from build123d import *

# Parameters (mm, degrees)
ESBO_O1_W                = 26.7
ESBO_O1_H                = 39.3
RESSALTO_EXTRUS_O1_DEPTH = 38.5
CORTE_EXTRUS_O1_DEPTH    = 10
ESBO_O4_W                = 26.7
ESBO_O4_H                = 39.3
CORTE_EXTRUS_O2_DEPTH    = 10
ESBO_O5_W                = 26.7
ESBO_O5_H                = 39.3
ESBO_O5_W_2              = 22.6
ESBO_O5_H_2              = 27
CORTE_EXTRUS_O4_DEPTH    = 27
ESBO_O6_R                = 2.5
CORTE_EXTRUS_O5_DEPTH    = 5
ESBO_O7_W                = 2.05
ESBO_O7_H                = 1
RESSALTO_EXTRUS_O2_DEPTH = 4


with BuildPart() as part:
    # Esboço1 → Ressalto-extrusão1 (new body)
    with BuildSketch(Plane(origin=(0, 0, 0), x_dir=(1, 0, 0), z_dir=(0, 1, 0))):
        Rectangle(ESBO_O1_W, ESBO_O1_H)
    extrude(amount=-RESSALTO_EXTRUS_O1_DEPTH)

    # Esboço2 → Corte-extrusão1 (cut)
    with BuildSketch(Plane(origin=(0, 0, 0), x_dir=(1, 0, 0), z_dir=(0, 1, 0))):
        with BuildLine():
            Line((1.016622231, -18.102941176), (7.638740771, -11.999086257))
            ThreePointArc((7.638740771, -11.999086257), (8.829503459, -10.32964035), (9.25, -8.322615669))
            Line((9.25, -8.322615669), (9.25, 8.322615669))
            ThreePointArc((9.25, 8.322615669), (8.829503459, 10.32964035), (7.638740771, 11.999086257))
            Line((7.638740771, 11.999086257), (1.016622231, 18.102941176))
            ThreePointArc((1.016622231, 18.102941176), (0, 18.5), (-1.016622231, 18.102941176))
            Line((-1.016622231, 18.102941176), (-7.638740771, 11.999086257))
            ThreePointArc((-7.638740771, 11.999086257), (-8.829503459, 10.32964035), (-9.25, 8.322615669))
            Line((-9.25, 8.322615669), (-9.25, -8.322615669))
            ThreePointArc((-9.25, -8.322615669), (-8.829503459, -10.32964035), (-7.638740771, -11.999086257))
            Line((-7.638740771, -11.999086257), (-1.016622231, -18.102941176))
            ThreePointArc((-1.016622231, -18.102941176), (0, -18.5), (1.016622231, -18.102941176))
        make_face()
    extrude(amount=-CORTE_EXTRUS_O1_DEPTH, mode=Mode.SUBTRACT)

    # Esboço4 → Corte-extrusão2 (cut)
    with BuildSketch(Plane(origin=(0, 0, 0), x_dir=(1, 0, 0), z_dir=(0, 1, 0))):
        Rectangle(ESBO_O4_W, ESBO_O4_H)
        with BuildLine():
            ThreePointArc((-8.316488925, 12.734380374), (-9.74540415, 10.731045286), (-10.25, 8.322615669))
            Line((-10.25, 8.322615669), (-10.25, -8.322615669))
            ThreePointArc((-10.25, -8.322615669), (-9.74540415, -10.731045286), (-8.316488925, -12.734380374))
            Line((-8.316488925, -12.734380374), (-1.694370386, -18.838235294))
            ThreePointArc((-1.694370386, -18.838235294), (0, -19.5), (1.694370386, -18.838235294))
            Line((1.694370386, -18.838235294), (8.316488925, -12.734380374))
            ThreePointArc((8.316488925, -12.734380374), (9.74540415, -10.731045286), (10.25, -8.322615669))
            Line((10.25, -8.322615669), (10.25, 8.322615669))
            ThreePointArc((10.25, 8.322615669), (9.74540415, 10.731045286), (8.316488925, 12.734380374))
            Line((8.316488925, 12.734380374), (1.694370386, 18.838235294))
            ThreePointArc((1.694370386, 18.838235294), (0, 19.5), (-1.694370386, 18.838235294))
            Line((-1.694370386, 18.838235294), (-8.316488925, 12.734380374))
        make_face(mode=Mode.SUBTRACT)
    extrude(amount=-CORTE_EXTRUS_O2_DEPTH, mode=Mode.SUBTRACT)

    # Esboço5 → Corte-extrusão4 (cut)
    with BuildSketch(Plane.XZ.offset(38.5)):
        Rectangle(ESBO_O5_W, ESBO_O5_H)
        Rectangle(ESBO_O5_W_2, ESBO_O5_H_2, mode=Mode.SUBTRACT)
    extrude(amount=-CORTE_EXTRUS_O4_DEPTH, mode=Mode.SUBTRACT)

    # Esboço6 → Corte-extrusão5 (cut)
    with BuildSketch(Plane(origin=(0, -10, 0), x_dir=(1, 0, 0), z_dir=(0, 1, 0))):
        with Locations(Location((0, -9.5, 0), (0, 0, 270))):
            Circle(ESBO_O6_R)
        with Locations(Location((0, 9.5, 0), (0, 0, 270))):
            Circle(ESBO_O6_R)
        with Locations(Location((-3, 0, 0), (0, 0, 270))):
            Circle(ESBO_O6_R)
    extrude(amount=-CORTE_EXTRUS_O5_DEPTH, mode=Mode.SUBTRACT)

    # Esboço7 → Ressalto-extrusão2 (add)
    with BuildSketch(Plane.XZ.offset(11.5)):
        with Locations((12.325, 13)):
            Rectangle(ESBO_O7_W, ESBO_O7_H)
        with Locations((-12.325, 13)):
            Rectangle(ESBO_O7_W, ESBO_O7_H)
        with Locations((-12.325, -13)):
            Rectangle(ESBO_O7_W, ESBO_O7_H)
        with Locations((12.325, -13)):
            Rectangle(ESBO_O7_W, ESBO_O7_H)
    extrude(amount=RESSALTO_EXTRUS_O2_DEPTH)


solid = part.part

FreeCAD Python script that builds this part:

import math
import FreeCAD as App
import Part
import Sketcher
from FreeCAD import Vector
Q = App.Units.Quantity


def add_polygon(sketch, points):
    """Adds a closed chain of lines whose ends are joined by coincident constraints."""
    first, n = sketch.GeometryCount, len(points)
    for a, b in zip(points, points[1:] + points[:1]):
        sketch.addGeometry(Part.LineSegment(App.Vector(*a, 0), App.Vector(*b, 0)), False)
    for i in range(n):
        sketch.addConstraint(Sketcher.Constraint("Coincident", first + i, 2, first + (i + 1) % n, 1))

doc = App.newDocument("Part")
params = doc.addObject("Spreadsheet::Sheet", "Params")
for row, (alias, value) in enumerate([
    ("sketch1_width", "26.7 mm"),
    ("sketch1_height", "39.3 mm"),
    ("pad1_length", "38.5 mm"),
    ("sketch2_radius", "5 mm"),
    ("sketch2_radius2", "1.5 mm"),
    ("pocket1_length", "10 mm"),
    ("sketch3_radius", "6 mm"),
    ("sketch3_radius2", "2.5 mm"),
    ("sketch3_width", "26.7 mm"),
    ("sketch3_height", "39.3 mm"),
    ("pocket2_length", "10 mm"),
    ("sketch4_height", "27 mm"),
    ("sketch4_width", "26.7 mm"),
    ("sketch4_width2", "22.6 mm"),
    ("sketch4_height2", "39.3 mm"),
    ("pocket3_length", "27 mm"),
    ("sketch5_diameter", "5 mm"),
    ("pocket4_length", "5 mm"),
    ("sketch6_height", "1 mm"),
    ("sketch6_width", "2.05 mm"),
    ("pad2_length", "4 mm"),
], start=1):
    params.set(f"A{row}", alias)
    params.set(f"B{row}", "=" + value)
    params.setAlias(f"B{row}", alias)

body = doc.addObject("PartDesign::Body", "Body")

sketch1 = doc.addObject("Sketcher::SketchObject", "Sketch")
body.addObject(sketch1)
sketch1.AttachmentSupport = (doc.XZ_Plane, [""])
sketch1.MapMode = "FlatFace"
add_polygon(sketch1, [(-13, -20), (-13, 20), (13, 20), (13, -20)])
sketch1.addConstraint([
    Sketcher.Constraint("Vertical", 0),
    Sketcher.Constraint("Horizontal", 1),
    Sketcher.Constraint("Vertical", 2),
    Sketcher.Constraint("Horizontal", 3),
    Sketcher.Constraint("Symmetric", 0, 2, 2, 2, -1, 1),
    Sketcher.Constraint("DistanceX", 1, 1, 1, 2, Q("26.7 mm")),
    Sketcher.Constraint("DistanceY", 0, 1, 0, 2, Q("39.3 mm")),
])
sketch1.setExpression("Constraints[9]", "Params.sketch1_width")
sketch1.setExpression("Constraints[10]", "Params.sketch1_height")
pad1 = doc.addObject("PartDesign::Pad", "Pad")
body.addObject(pad1)
pad1.Profile = sketch1
pad1.setExpression("Length", "Params.pad1_length")

sketch2 = doc.addObject("Sketcher::SketchObject", "Sketch001")
body.addObject(sketch2)
sketch2.AttachmentSupport = (doc.XZ_Plane, [""])
sketch2.MapMode = "FlatFace"
sketch2.addGeometry([
    Part.LineSegment(Vector(1, 18.1, 0), Vector(7.6, 12, 0)),
    Part.ArcOfCircle(Part.Circle(Vector(4.3, 8.3, 0), Vector(0, 0, 1), 5), math.radians(0), math.radians(47)),
    Part.LineSegment(Vector(9.2, 8.3, 0), Vector(9.2, -8.3, 0)),
    Part.ArcOfCircle(Part.Circle(Vector(4.3, -8.3, 0), Vector(0, 0, 1), 5), math.radians(-47), math.radians(0)),
    Part.LineSegment(Vector(7.6, -12, 0), Vector(1, -18.1, 0)),
    Part.ArcOfCircle(Part.Circle(Vector(0, -17, 0), Vector(0, 0, 1), 1.5), math.radians(-133), math.radians(-47)),
    Part.LineSegment(Vector(-1, -18.1, 0), Vector(-7.6, -12, 0)),
    Part.ArcOfCircle(Part.Circle(Vector(-4.3, -8.3, 0), Vector(0, 0, 1), 5), math.radians(180), math.radians(227)),
    Part.LineSegment(Vector(-9.2, -8.3, 0), Vector(-9.2, 8.3, 0)),
    Part.ArcOfCircle(Part.Circle(Vector(-4.3, 8.3, 0), Vector(0, 0, 1), 5), math.radians(133), math.radians(180)),
    Part.LineSegment(Vector(-7.6, 12, 0), Vector(-1, 18.1, 0)),
    Part.ArcOfCircle(Part.Circle(Vector(0, 17, 0), Vector(0, 0, 1), 1.5), math.radians(47), math.radians(133)),
], False)
sketch2.addConstraint([
    Sketcher.Constraint("Tangent", 0, 2, 1, 2),
    Sketcher.Constraint("Tangent", 1, 1, 2, 1),
    Sketcher.Constraint("Tangent", 2, 2, 3, 2),
    Sketcher.Constraint("Tangent", 3, 1, 4, 1),
    Sketcher.Constraint("Tangent", 4, 2, 5, 2),
    Sketcher.Constraint("Tangent", 5, 1, 6, 1),
    Sketcher.Constraint("Tangent", 6, 2, 7, 2),
    Sketcher.Constraint("Tangent", 7, 1, 8, 1),
    Sketcher.Constraint("Tangent", 8, 2, 9, 2),
    Sketcher.Constraint("Tangent", 9, 1, 10, 1),
    Sketcher.Constraint("Tangent", 10, 2, 11, 2),
    Sketcher.Constraint("Tangent", 11, 1, 0, 1),
    Sketcher.Constraint("Vertical", 2),
    Sketcher.Constraint("Vertical", 8),
    Sketcher.Constraint("Equal", 1, 3),
    Sketcher.Constraint("Equal", 3, 7),
    Sketcher.Constraint("Equal", 7, 9),
    Sketcher.Constraint("Equal", 5, 11),
    Sketcher.Constraint("Symmetric", 1, 3, 7, 3, -1, 1),
    Sketcher.Constraint("Symmetric", 5, 3, 11, 3, -1, 1),
    Sketcher.Constraint("Symmetric", 4, 2, 5, 1, -2),
    Sketcher.Constraint("Parallel", 4, 10),
    Sketcher.Constraint("Radius", 1, Q("5 mm")),
    Sketcher.Constraint("Radius", 5, Q("1.5 mm")),
    Sketcher.Constraint("DistanceY", 5, 3, -1, 1, Q("17 mm")),
    Sketcher.Constraint("DistanceX", 7, 3, 3, 3, Q("8.5 mm")),
    Sketcher.Constraint("DistanceY", 2, 2, 2, 1, Q("16.645231 mm")),
])
sketch2.setExpression("Constraints[22]", "Params.sketch2_radius")
sketch2.setExpression("Constraints[23]", "Params.sketch2_radius2")
pocket1 = doc.addObject("PartDesign::Pocket", "Pocket")
body.addObject(pocket1)
pocket1.Profile = sketch2
pocket1.setExpression("Length", "Params.pocket1_length")
pocket1.Reversed = True

sketch3 = doc.addObject("Sketcher::SketchObject", "Sketch002")
body.addObject(sketch3)
sketch3.AttachmentSupport = (doc.XZ_Plane, [""])
sketch3.MapMode = "FlatFace"
add_polygon(sketch3, [(-13.3, -19.6), (-13.3, 19.6), (13.3, 19.6), (13.3, -19.6)])
sketch3.addGeometry(Part.ArcOfCircle(Part.Circle(Vector(-4.2, -8.3, 0), Vector(0, 0, 1), 6), math.radians(-180), math.radians(-133)), False)
sketch3.addGeometry(Part.LineSegment(Vector(-8.3, -12.7, 0), Vector(-1.7, -18.8, 0)), False)
sketch3.addGeometry(Part.ArcOfCircle(Part.Circle(Vector(0, -17, 0), Vector(0, 0, 1), 2.5), math.radians(-133), math.radians(-47)), False)
sketch3.addGeometry(Part.LineSegment(Vector(1.7, -18.8, 0), Vector(8.3, -12.7, 0)), False)
sketch3.addGeometry(Part.ArcOfCircle(Part.Circle(Vector(4.2, -8.3, 0), Vector(0, 0, 1), 6), math.radians(-47), math.radians(0)), False)
sketch3.addGeometry(Part.LineSegment(Vector(10.2, -8.3, 0), Vector(10.2, 8.3, 0)), False)
sketch3.addGeometry(Part.ArcOfCircle(Part.Circle(Vector(4.2, 8.3, 0), Vector(0, 0, 1), 6), math.radians(0), math.radians(47)), False)
sketch3.addGeometry(Part.LineSegment(Vector(8.3, 12.7, 0), Vector(1.7, 18.8, 0)), False)
sketch3.addGeometry(Part.ArcOfCircle(Part.Circle(Vector(0, 17, 0), Vector(0, 0, 1), 2.5), math.radians(47), math.radians(133)), False)
sketch3.addGeometry(Part.LineSegment(Vector(-1.7, 18.8, 0), Vector(-8.3, 12.7, 0)), False)
sketch3.addGeometry(Part.ArcOfCircle(Part.Circle(Vector(-4.2, 8.3, 0), Vector(0, 0, 1), 6), math.radians(133), math.radians(180)), False)
sketch3.addGeometry(Part.LineSegment(Vector(-10.2, 8.3, 0), Vector(-10.2, -8.3, 0)), False)
sketch3.addConstraint([
    Sketcher.Constraint("Tangent", 4, 2, 5, 1),
    Sketcher.Constraint("Tangent", 5, 2, 6, 1),
    Sketcher.Constraint("Tangent", 6, 2, 7, 1),
    Sketcher.Constraint("Tangent", 7, 2, 8, 1),
    Sketcher.Constraint("Tangent", 8, 2, 9, 1),
    Sketcher.Constraint("Tangent", 9, 2, 10, 1),
    Sketcher.Constraint("Tangent", 10, 2, 11, 1),
    Sketcher.Constraint("Tangent", 11, 2, 12, 1),
    Sketcher.Constraint("Tangent", 12, 2, 13, 1),
    Sketcher.Constraint("Tangent", 13, 2, 14, 1),
    Sketcher.Constraint("Tangent", 14, 2, 15, 1),
    Sketcher.Constraint("Tangent", 15, 2, 4, 1),
    Sketcher.Constraint("Vertical", 0),
    Sketcher.Constraint("Horizontal", 1),
    Sketcher.Constraint("Vertical", 2),
    Sketcher.Constraint("Horizontal", 3),
    Sketcher.Constraint("Vertical", 9),
    Sketcher.Constraint("Vertical", 15),
    Sketcher.Constraint("Equal", 4, 8),
    Sketcher.Constraint("Equal", 8, 10),
    Sketcher.Constraint("Equal", 6, 12),
    Sketcher.Constraint("Equal", 10, 14),
    Sketcher.Constraint("Symmetric", 4, 3, 10, 3, -1, 1),
    Sketcher.Constraint("Symmetric", 6, 3, 12, 3, -1, 1),
    Sketcher.Constraint("Symmetric", 0, 2, 2, 2, -1, 1),
    Sketcher.Constraint("Symmetric", 5, 2, 6, 2, -2),
    Sketcher.Constraint("Parallel", 7, 13),
    Sketcher.Constraint("Radius", 4, Q("6 mm")),
    Sketcher.Constraint("Radius", 6, Q("2.5 mm")),
    Sketcher.Constraint("DistanceX", 1, 1, 1, 2, Q("26.7 mm")),
    Sketcher.Constraint("DistanceY", 0, 1, 0, 2, Q("39.3 mm")),
    Sketcher.Constraint("DistanceY", 6, 3, -1, 1, Q("17 mm")),
    Sketcher.Constraint("DistanceX", 4, 3, 8, 3, Q("8.5 mm")),
    Sketcher.Constraint("DistanceY", 9, 1, 9, 2, Q("16.645231 mm")),
])
sketch3.setExpression("Constraints[31]", "Params.sketch3_radius")
sketch3.setExpression("Constraints[32]", "Params.sketch3_radius2")
sketch3.setExpression("Constraints[33]", "Params.sketch3_width")
sketch3.setExpression("Constraints[34]", "Params.sketch3_height")
pocket2 = doc.addObject("PartDesign::Pocket", "Pocket001")
body.addObject(pocket2)
pocket2.Profile = sketch3
pocket2.setExpression("Length", "Params.pocket2_length")
pocket2.Reversed = True

sketch4 = doc.addObject("Sketcher::SketchObject", "Sketch003")
body.addObject(sketch4)
sketch4.AttachmentSupport = (doc.XZ_Plane, [""])
sketch4.MapMode = "FlatFace"
sketch4.AttachmentOffset = App.Placement(Vector(0, 0, 38.5), App.Rotation())
add_polygon(sketch4, [(-13, 20), (-13, -20), (13, -20), (13, 20)])
add_polygon(sketch4, [(11, -14), (-11, -14), (-11, 14), (11, 14)])
sketch4.addConstraint([
    Sketcher.Constraint("Vertical", 0),
    Sketcher.Constraint("Horizontal", 1),
    Sketcher.Constraint("Vertical", 2),
    Sketcher.Constraint("Horizontal", 3),
    Sketcher.Constraint("Horizontal", 4),
    Sketcher.Constraint("Vertical", 5),
    Sketcher.Constraint("Horizontal", 6),
    Sketcher.Constraint("Vertical", 7),
    Sketcher.Constraint("Symmetric", 0, 2, 2, 2, -1, 1),
    Sketcher.Constraint("Symmetric", 4, 2, 6, 2, -1, 1),
    Sketcher.Constraint("DistanceY", 5, 1, 5, 2, Q("27 mm")),
    Sketcher.Constraint("DistanceX", 1, 1, 1, 2, Q("26.7 mm")),
    Sketcher.Constraint("DistanceX", 4, 2, 4, 1, Q("22.6 mm")),
    Sketcher.Constraint("DistanceY", 0, 2, 0, 1, Q("39.3 mm")),
])
sketch4.setExpression("Constraints[18]", "Params.sketch4_height")
sketch4.setExpression("Constraints[19]", "Params.sketch4_width")
sketch4.setExpression("Constraints[20]", "Params.sketch4_width2")
sketch4.setExpression("Constraints[21]", "Params.sketch4_height2")
pocket3 = doc.addObject("PartDesign::Pocket", "Pocket002")
body.addObject(pocket3)
pocket3.Profile = sketch4
pocket3.setExpression("Length", "Params.pocket3_length")

sketch5 = doc.addObject("Sketcher::SketchObject", "Sketch004")
body.addObject(sketch5)
sketch5.AttachmentSupport = (doc.XZ_Plane, [""])
sketch5.MapMode = "FlatFace"
sketch5.AttachmentOffset = App.Placement(Vector(0, 0, 10), App.Rotation())
sketch5.addGeometry([
    Part.Circle(Vector(0, 9.5, 0), Vector(0, 0, 1), 2.5),
    Part.Circle(Vector(0, -9.5, 0), Vector(0, 0, 1), 2.5),
    Part.Circle(Vector(-3, 0, 0), Vector(0, 0, 1), 2.5),
], False)
sketch5.addConstraint([
    Sketcher.Constraint("Equal", 0, 1),
    Sketcher.Constraint("Equal", 1, 2),
    Sketcher.Constraint("Symmetric", 0, 3, 1, 3, -1, 1),
    Sketcher.Constraint("PointOnObject", 0, 3, -2),
    Sketcher.Constraint("PointOnObject", 2, 3, -1),
    Sketcher.Constraint("Diameter", 0, Q("5 mm")),
    Sketcher.Constraint("DistanceX", 2, 3, -1, 1, Q("3 mm")),
    Sketcher.Constraint("DistanceY", 1, 3, 0, 3, Q("19 mm")),
])
sketch5.setExpression("Constraints[5]", "Params.sketch5_diameter")
pocket4 = doc.addObject("PartDesign::Pocket", "Pocket003")
body.addObject(pocket4)
pocket4.Profile = sketch5
pocket4.setExpression("Length", "Params.pocket4_length")
pocket4.Reversed = True

sketch6 = doc.addObject("Sketcher::SketchObject", "Sketch005")
body.addObject(sketch6)
sketch6.AttachmentSupport = (doc.XZ_Plane, [""])
sketch6.MapMode = "FlatFace"
sketch6.AttachmentOffset = App.Placement(Vector(0, 0, 11.5), App.Rotation())
add_polygon(sketch6, [(11.3, 13.5), (11.3, 12.5), (13.3, 12.5), (13.3, 13.5)])
add_polygon(sketch6, [(-13.3, 13.5), (-13.3, 12.5), (-11.3, 12.5), (-11.3, 13.5)])
add_polygon(sketch6, [(-13.3, -12.5), (-13.3, -13.5), (-11.3, -13.5), (-11.3, -12.5)])
add_polygon(sketch6, [(11.3, -12.5), (11.3, -13.5), (13.3, -13.5), (13.3, -12.5)])
sketch6.addConstraint([
    Sketcher.Constraint("Vertical", 0),
    Sketcher.Constraint("Horizontal", 1),
    Sketcher.Constraint("Vertical", 2),
    Sketcher.Constraint("Horizontal", 3),
    Sketcher.Constraint("Vertical", 4),
    Sketcher.Constraint("Horizontal", 5),
    Sketcher.Constraint("Vertical", 6),
    Sketcher.Constraint("Horizontal", 7),
    Sketcher.Constraint("Vertical", 8),
    Sketcher.Constraint("Horizontal", 9),
    Sketcher.Constraint("Vertical", 10),
    Sketcher.Constraint("Horizontal", 11),
    Sketcher.Constraint("Vertical", 12),
    Sketcher.Constraint("Horizontal", 13),
    Sketcher.Constraint("Vertical", 14),
    Sketcher.Constraint("Horizontal", 15),
    Sketcher.Constraint("Symmetric", 2, 2, 8, 2, -1, 1),
    Sketcher.Constraint("Symmetric", 0, 2, 10, 2, -1, 1),
    Sketcher.Constraint("Symmetric", 6, 2, 12, 2, -1, 1),
    Sketcher.Constraint("Symmetric", 4, 2, 14, 2, -1, 1),
    Sketcher.Constraint("Symmetric", 1, 2, 4, 2, -2),
    Sketcher.Constraint("Symmetric", 3, 2, 6, 2, -2),
    Sketcher.Constraint("DistanceY", 0, 2, 0, 1, Q("1 mm")),
    Sketcher.Constraint("DistanceY", 8, 2, 4, 2, Q("26 mm")),
    Sketcher.Constraint("DistanceX", 1, 1, 1, 2, Q("2.05 mm")),
    Sketcher.Constraint("DistanceX", -1, 1, 0, 2, Q("11.3 mm")),
])
sketch6.setExpression("Constraints[38]", "Params.sketch6_height")
sketch6.setExpression("Constraints[40]", "Params.sketch6_width")
pad2 = doc.addObject("PartDesign::Pad", "Pad001")
body.addObject(pad2)
pad2.Profile = sketch6
pad2.setExpression("Length", "Params.pad2_length")

doc.recompute()
